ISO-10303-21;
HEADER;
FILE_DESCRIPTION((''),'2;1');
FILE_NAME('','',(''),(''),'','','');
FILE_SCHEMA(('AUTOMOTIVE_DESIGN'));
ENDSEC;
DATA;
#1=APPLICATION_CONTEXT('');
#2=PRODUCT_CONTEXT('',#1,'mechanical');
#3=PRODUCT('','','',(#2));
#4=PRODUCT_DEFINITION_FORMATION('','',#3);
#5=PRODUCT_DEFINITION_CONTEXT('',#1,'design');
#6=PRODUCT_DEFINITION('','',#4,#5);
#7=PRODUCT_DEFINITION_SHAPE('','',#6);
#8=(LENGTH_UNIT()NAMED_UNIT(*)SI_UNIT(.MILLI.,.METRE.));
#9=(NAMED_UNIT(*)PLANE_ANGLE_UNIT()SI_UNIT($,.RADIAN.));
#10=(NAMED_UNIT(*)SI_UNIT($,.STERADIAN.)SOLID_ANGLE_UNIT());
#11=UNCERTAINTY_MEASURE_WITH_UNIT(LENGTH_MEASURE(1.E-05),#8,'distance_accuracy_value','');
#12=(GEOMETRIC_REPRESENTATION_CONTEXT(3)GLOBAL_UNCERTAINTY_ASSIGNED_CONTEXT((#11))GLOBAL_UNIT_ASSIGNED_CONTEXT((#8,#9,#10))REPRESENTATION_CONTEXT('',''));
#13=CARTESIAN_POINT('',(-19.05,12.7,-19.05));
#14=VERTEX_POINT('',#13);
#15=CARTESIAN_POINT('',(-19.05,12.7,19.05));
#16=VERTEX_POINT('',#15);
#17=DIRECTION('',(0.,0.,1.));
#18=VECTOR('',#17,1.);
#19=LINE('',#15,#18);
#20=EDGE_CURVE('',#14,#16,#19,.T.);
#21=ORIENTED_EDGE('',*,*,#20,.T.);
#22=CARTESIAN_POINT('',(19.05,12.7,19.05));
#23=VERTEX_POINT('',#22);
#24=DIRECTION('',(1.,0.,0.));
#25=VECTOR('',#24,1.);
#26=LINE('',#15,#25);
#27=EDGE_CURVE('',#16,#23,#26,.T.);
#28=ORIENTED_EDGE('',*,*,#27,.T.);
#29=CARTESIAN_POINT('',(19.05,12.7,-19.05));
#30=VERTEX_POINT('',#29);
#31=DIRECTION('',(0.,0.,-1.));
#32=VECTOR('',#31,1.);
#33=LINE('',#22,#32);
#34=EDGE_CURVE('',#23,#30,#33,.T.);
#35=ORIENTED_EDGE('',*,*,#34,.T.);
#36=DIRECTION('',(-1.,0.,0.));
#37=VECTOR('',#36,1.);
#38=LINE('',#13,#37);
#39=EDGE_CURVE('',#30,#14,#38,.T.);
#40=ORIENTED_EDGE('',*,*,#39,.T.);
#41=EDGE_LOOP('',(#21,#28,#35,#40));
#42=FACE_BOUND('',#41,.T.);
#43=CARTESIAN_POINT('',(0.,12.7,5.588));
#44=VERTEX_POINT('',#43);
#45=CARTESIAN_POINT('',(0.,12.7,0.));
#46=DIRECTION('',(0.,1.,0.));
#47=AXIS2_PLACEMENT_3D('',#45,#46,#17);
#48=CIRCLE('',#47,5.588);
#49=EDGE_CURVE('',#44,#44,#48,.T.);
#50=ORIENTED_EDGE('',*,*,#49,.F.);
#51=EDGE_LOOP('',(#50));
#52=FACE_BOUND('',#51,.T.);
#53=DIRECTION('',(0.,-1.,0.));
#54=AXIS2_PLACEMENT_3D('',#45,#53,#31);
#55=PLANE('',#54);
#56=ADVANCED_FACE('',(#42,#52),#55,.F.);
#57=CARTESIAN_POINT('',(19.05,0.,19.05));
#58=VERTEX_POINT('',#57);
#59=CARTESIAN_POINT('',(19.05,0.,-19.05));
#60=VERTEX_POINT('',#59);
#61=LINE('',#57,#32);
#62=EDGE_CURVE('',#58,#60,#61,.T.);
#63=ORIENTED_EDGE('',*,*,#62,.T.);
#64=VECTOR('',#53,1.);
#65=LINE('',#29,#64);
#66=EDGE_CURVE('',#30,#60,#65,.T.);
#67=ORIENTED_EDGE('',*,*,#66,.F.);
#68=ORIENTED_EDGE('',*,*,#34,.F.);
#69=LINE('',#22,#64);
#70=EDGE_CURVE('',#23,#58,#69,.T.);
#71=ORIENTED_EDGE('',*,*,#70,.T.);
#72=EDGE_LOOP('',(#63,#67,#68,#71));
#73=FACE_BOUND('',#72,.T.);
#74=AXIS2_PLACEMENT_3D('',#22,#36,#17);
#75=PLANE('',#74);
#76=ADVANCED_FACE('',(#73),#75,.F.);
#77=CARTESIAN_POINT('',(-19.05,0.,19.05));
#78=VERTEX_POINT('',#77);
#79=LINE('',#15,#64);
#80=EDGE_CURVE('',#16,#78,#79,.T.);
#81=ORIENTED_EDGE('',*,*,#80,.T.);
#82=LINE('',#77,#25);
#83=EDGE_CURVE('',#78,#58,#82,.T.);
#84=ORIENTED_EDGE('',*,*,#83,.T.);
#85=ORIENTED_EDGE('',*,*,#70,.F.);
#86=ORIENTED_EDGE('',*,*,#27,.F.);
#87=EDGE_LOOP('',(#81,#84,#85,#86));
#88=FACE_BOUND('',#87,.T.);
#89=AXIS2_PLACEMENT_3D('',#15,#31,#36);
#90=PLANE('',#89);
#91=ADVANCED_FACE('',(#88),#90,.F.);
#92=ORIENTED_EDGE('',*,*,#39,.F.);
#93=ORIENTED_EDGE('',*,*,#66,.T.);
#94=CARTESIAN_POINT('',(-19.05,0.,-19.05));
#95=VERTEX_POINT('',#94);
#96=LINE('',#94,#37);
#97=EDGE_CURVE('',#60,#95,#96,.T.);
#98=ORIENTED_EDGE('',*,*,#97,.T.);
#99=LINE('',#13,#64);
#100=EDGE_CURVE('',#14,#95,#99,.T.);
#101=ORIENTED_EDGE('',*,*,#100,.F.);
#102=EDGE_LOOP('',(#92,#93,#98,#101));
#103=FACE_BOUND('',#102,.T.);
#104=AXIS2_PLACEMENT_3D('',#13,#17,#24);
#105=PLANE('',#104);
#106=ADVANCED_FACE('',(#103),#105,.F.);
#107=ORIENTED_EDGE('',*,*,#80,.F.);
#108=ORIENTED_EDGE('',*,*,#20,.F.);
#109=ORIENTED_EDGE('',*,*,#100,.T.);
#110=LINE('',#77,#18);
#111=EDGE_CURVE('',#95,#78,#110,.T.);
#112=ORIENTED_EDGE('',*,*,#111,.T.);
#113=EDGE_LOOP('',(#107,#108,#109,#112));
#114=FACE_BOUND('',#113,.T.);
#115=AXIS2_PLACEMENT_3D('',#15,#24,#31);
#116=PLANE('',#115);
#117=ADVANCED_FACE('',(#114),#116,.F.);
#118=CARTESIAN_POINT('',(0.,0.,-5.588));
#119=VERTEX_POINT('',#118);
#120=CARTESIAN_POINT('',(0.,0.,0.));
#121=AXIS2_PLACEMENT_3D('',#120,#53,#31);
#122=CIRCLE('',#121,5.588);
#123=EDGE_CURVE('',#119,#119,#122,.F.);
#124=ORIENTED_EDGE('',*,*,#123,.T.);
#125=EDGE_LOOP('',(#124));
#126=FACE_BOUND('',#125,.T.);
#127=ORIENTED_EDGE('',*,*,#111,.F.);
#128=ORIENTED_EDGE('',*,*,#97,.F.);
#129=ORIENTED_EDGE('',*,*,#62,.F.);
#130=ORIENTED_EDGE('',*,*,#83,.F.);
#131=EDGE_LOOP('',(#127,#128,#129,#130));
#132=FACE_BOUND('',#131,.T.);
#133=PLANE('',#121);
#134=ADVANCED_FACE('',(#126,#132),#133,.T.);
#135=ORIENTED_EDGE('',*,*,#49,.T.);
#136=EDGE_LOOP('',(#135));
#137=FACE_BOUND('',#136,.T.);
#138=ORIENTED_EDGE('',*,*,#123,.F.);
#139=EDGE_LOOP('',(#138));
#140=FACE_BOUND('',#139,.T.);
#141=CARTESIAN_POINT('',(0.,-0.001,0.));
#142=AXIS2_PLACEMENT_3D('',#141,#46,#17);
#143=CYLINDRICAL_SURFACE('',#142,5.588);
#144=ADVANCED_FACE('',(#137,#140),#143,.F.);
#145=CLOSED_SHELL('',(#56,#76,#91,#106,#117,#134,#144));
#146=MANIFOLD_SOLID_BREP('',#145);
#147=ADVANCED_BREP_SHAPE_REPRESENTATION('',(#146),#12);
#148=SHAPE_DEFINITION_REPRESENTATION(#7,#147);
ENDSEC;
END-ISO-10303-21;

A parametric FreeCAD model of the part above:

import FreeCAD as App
import Part
import Sketcher

V = App.Vector
Q = App.Units.Quantity


def add_polygon(sketch, points):
    """Adds a closed chain of lines whose ends are joined by coincident constraints."""
    first, n = sketch.GeometryCount, len(points)
    for a, b in zip(points, points[1:] + points[:1]):
        sketch.addGeometry(Part.LineSegment(App.Vector(*a, 0), App.Vector(*b, 0)), False)
    for i in range(n):
        sketch.addConstraint(Sketcher.Constraint("Coincident", first + i, 2, first + (i + 1) % n, 1))

doc = App.newDocument("Part")
body = doc.addObject("PartDesign::Body", "Body")

# Sketch on XZ plane
sketch1 = body.newObject("Sketcher::SketchObject", "Sketch")
sketch1.AttachmentSupport = (doc.getObject("XZ_Plane"), [""])
sketch1.MapMode = "FlatFace"
add_polygon(sketch1, [(-19, -19), (-19, 19), (19, 19), (19, -19)])  # lines 0-3
sketch1.addConstraint([
    Sketcher.Constraint("Vertical", 0),
    Sketcher.Constraint("Horizontal", 1),
    Sketcher.Constraint("Vertical", 2),
    Sketcher.Constraint("Horizontal", 3),
    Sketcher.Constraint("Symmetric", 0, 2, 2, 2, -1, 1),
    Sketcher.Constraint("Equal", 3, 0),
    Sketcher.Constraint("DistanceX", 1, 1, 1, 2, Q("1.5 in")),
])
pad1 = body.newObject("PartDesign::Pad", "Pad")
pad1.Profile = sketch1
pad1.Length = Q("0.5 in")
pad1.Reversed = True

# Sketch on XZ plane
sketch2 = body.newObject("Sketcher::SketchObject", "Sketch001")
sketch2.AttachmentSupport = (doc.getObject("XZ_Plane"), [""])
sketch2.MapMode = "FlatFace"
sketch2.AttachmentOffset = App.Placement(V(0, 0, -0.5 * 25.4), App.Rotation())
sketch2.addGeometry(Part.Circle(V(0, 0, 0), V(0, 0, 1), 6), False)
sketch2.addConstraint([
    Sketcher.Constraint("Coincident", 0, 3, -1, 1),
    Sketcher.Constraint("Diameter", 0, Q("0.44 in")),
])
pocket1 = body.newObject("PartDesign::Pocket", "Pocket")
pocket1.Profile = sketch2
pocket1.Type = "UpToFirst"
pocket1.Reversed = True

doc.recompute()
